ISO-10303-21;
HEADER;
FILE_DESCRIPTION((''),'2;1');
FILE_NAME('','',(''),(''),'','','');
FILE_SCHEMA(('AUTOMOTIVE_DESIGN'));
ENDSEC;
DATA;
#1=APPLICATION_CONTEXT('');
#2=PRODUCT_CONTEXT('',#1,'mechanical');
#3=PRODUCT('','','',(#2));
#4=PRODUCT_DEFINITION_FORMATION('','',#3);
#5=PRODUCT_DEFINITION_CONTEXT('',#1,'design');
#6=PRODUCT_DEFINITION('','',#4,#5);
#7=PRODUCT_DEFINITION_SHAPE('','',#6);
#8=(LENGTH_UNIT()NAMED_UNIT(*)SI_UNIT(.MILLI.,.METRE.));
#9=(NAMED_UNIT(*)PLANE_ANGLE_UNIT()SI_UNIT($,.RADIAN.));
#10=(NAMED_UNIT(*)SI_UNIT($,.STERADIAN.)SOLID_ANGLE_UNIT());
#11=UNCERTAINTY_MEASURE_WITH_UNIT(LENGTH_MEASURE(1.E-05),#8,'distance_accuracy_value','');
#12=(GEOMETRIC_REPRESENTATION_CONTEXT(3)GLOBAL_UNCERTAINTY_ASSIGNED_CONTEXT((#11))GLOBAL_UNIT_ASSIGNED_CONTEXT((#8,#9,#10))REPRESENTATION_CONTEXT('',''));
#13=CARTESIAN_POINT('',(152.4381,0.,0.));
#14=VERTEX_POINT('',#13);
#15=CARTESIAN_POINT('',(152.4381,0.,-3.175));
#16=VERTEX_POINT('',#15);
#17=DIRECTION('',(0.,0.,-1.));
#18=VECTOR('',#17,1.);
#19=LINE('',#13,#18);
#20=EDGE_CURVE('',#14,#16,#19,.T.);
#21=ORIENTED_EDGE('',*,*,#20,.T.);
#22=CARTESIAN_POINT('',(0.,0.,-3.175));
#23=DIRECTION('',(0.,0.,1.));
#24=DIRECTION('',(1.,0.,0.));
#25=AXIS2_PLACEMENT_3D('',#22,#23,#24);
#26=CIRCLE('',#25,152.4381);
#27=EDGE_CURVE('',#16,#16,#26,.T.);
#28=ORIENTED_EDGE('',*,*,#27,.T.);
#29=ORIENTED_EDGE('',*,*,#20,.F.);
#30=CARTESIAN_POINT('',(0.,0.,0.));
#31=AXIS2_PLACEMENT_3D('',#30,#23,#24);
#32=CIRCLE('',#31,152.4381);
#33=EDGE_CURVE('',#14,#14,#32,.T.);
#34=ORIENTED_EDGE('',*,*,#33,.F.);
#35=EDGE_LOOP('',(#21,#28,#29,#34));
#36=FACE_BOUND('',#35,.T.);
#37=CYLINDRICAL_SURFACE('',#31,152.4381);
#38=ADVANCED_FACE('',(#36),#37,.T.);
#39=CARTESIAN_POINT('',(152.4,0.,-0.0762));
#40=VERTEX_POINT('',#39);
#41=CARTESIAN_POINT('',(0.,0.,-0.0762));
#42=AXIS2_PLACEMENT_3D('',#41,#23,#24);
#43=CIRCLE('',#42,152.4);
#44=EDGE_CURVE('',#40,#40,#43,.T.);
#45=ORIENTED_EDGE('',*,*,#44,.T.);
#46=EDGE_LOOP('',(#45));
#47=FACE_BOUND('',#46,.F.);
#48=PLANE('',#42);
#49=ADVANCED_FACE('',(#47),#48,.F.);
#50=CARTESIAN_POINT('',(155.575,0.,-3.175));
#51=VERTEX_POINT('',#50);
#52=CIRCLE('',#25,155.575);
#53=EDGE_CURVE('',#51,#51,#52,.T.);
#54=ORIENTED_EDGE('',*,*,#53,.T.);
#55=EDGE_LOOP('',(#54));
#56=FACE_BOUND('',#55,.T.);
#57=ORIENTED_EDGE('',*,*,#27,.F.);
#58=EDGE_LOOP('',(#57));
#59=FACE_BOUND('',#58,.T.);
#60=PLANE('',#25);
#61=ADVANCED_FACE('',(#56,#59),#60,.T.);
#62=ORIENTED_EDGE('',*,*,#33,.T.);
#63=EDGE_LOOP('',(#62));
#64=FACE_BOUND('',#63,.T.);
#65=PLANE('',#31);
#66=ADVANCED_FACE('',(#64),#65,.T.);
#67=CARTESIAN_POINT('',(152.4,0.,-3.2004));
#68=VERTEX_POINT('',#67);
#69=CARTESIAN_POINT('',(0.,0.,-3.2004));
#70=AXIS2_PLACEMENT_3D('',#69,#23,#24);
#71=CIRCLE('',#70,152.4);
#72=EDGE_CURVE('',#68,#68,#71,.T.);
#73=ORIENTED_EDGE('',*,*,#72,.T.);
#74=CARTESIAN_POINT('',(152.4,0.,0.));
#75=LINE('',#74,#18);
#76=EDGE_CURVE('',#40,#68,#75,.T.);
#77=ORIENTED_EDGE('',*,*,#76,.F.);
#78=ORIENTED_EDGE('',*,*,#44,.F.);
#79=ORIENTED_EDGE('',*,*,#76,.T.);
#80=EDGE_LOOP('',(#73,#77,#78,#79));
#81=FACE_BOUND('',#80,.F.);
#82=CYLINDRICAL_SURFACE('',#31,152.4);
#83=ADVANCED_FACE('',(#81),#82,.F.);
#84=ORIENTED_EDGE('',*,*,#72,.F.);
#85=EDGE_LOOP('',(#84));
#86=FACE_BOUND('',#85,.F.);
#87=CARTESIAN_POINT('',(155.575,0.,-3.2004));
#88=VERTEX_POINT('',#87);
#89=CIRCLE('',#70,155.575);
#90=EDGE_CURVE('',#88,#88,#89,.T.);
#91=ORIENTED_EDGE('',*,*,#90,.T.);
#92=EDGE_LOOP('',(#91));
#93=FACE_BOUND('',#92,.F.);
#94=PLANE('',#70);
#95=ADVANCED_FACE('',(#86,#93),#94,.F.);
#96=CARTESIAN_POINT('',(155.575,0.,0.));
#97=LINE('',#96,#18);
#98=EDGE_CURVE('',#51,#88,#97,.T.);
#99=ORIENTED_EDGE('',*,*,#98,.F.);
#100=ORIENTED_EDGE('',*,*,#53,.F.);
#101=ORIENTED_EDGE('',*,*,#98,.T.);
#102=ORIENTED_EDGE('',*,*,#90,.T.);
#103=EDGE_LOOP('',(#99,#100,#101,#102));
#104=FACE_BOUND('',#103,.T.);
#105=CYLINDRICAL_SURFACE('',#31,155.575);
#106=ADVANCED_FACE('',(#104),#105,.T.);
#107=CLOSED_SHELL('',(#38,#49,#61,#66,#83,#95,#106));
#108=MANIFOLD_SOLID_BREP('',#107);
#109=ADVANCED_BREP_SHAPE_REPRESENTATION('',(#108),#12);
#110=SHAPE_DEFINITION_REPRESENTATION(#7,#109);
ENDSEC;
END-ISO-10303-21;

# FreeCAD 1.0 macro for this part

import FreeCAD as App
import Part
import Sketcher

V = App.Vector
Q = App.Units.Quantity

doc = App.newDocument("Part")
body = doc.addObject("PartDesign::Body", "Body")

# Sketch on XY plane
sketch1 = doc.addObject("Sketcher::SketchObject", "Sketch")
body.addObject(sketch1)
sketch1.AttachmentSupport = (doc.XY_Plane, [""])
sketch1.MapMode = "FlatFace"
sketch1.addGeometry(Part.Circle(V(0, 0, 0), V(0, 0, 1), 152), False)
sketch1.addConstraint(Sketcher.Constraint("Coincident", 0, 3, -1, 1))
sketch1.addConstraint(Sketcher.Constraint("Diameter", 0, Q("12 in")))
pad1 = doc.addObject("PartDesign::Pad", "Pad")
body.addObject(pad1)
pad1.Profile = sketch1
pad1.Length = Q("0.003 in")
pad1.Reversed = True

# Sketch on XY plane
sketch2 = doc.addObject("Sketcher::SketchObject", "Sketch001")
body.addObject(sketch2)
sketch2.AttachmentSupport = (doc.XY_Plane, [""])
sketch2.MapMode = "FlatFace"
sketch2.addGeometry(Part.Circle(V(0, 0, 0), V(0, 0, 1), 156), False)
sketch2.addGeometry(Part.Circle(V(0, 0, 0), V(0, 0, 1), 152), False)
sketch2.addConstraint(Sketcher.Constraint("Coincident", 0, 3, -1, 1))
sketch2.addConstraint(Sketcher.Constraint("Coincident", 1, 3, -1, 1))
sketch2.addConstraint(Sketcher.Constraint("Diameter", 1, Q("12 in")))
sketch2.addConstraint(Sketcher.Constraint("Diameter", 0, Q("12.25 in")))
pad2 = doc.addObject("PartDesign::Pad", "Pad001")
body.addObject(pad2)
pad2.Profile = sketch2
pad2.Length = Q("0.126 in")
pad2.Reversed = True

# Sketch on XY plane
sketch3 = doc.addObject("Sketcher::SketchObject", "Sketch002")
body.addObject(sketch3)
sketch3.AttachmentSupport = (doc.XY_Plane, [""])
sketch3.MapMode = "FlatFace"
sketch3.addGeometry(Part.Circle(V(0, 0, 0), V(0, 0, 1), 156), False)
sketch3.addGeometry(Part.Circle(V(0, 0, 0), V(0, 0, 1), 152), False)
sketch3.addConstraint(Sketcher.Constraint("Coincident", 0, 3, -1, 1))
sketch3.addConstraint(Sketcher.Constraint("Coincident", 1, 3, -1, 1))
sketch3.addConstraint(Sketcher.Constraint("Diameter", 0, Q("12.25 in")))
sketch3.addConstraint(Sketcher.Constraint("Diameter", 1, Q("12.003 in")))
pocket1 = doc.addObject("PartDesign::Pocket", "Pocket")
body.addObject(pocket1)
pocket1.Profile = sketch3
pocket1.Length = Q("0.125 in")

doc.recompute()
